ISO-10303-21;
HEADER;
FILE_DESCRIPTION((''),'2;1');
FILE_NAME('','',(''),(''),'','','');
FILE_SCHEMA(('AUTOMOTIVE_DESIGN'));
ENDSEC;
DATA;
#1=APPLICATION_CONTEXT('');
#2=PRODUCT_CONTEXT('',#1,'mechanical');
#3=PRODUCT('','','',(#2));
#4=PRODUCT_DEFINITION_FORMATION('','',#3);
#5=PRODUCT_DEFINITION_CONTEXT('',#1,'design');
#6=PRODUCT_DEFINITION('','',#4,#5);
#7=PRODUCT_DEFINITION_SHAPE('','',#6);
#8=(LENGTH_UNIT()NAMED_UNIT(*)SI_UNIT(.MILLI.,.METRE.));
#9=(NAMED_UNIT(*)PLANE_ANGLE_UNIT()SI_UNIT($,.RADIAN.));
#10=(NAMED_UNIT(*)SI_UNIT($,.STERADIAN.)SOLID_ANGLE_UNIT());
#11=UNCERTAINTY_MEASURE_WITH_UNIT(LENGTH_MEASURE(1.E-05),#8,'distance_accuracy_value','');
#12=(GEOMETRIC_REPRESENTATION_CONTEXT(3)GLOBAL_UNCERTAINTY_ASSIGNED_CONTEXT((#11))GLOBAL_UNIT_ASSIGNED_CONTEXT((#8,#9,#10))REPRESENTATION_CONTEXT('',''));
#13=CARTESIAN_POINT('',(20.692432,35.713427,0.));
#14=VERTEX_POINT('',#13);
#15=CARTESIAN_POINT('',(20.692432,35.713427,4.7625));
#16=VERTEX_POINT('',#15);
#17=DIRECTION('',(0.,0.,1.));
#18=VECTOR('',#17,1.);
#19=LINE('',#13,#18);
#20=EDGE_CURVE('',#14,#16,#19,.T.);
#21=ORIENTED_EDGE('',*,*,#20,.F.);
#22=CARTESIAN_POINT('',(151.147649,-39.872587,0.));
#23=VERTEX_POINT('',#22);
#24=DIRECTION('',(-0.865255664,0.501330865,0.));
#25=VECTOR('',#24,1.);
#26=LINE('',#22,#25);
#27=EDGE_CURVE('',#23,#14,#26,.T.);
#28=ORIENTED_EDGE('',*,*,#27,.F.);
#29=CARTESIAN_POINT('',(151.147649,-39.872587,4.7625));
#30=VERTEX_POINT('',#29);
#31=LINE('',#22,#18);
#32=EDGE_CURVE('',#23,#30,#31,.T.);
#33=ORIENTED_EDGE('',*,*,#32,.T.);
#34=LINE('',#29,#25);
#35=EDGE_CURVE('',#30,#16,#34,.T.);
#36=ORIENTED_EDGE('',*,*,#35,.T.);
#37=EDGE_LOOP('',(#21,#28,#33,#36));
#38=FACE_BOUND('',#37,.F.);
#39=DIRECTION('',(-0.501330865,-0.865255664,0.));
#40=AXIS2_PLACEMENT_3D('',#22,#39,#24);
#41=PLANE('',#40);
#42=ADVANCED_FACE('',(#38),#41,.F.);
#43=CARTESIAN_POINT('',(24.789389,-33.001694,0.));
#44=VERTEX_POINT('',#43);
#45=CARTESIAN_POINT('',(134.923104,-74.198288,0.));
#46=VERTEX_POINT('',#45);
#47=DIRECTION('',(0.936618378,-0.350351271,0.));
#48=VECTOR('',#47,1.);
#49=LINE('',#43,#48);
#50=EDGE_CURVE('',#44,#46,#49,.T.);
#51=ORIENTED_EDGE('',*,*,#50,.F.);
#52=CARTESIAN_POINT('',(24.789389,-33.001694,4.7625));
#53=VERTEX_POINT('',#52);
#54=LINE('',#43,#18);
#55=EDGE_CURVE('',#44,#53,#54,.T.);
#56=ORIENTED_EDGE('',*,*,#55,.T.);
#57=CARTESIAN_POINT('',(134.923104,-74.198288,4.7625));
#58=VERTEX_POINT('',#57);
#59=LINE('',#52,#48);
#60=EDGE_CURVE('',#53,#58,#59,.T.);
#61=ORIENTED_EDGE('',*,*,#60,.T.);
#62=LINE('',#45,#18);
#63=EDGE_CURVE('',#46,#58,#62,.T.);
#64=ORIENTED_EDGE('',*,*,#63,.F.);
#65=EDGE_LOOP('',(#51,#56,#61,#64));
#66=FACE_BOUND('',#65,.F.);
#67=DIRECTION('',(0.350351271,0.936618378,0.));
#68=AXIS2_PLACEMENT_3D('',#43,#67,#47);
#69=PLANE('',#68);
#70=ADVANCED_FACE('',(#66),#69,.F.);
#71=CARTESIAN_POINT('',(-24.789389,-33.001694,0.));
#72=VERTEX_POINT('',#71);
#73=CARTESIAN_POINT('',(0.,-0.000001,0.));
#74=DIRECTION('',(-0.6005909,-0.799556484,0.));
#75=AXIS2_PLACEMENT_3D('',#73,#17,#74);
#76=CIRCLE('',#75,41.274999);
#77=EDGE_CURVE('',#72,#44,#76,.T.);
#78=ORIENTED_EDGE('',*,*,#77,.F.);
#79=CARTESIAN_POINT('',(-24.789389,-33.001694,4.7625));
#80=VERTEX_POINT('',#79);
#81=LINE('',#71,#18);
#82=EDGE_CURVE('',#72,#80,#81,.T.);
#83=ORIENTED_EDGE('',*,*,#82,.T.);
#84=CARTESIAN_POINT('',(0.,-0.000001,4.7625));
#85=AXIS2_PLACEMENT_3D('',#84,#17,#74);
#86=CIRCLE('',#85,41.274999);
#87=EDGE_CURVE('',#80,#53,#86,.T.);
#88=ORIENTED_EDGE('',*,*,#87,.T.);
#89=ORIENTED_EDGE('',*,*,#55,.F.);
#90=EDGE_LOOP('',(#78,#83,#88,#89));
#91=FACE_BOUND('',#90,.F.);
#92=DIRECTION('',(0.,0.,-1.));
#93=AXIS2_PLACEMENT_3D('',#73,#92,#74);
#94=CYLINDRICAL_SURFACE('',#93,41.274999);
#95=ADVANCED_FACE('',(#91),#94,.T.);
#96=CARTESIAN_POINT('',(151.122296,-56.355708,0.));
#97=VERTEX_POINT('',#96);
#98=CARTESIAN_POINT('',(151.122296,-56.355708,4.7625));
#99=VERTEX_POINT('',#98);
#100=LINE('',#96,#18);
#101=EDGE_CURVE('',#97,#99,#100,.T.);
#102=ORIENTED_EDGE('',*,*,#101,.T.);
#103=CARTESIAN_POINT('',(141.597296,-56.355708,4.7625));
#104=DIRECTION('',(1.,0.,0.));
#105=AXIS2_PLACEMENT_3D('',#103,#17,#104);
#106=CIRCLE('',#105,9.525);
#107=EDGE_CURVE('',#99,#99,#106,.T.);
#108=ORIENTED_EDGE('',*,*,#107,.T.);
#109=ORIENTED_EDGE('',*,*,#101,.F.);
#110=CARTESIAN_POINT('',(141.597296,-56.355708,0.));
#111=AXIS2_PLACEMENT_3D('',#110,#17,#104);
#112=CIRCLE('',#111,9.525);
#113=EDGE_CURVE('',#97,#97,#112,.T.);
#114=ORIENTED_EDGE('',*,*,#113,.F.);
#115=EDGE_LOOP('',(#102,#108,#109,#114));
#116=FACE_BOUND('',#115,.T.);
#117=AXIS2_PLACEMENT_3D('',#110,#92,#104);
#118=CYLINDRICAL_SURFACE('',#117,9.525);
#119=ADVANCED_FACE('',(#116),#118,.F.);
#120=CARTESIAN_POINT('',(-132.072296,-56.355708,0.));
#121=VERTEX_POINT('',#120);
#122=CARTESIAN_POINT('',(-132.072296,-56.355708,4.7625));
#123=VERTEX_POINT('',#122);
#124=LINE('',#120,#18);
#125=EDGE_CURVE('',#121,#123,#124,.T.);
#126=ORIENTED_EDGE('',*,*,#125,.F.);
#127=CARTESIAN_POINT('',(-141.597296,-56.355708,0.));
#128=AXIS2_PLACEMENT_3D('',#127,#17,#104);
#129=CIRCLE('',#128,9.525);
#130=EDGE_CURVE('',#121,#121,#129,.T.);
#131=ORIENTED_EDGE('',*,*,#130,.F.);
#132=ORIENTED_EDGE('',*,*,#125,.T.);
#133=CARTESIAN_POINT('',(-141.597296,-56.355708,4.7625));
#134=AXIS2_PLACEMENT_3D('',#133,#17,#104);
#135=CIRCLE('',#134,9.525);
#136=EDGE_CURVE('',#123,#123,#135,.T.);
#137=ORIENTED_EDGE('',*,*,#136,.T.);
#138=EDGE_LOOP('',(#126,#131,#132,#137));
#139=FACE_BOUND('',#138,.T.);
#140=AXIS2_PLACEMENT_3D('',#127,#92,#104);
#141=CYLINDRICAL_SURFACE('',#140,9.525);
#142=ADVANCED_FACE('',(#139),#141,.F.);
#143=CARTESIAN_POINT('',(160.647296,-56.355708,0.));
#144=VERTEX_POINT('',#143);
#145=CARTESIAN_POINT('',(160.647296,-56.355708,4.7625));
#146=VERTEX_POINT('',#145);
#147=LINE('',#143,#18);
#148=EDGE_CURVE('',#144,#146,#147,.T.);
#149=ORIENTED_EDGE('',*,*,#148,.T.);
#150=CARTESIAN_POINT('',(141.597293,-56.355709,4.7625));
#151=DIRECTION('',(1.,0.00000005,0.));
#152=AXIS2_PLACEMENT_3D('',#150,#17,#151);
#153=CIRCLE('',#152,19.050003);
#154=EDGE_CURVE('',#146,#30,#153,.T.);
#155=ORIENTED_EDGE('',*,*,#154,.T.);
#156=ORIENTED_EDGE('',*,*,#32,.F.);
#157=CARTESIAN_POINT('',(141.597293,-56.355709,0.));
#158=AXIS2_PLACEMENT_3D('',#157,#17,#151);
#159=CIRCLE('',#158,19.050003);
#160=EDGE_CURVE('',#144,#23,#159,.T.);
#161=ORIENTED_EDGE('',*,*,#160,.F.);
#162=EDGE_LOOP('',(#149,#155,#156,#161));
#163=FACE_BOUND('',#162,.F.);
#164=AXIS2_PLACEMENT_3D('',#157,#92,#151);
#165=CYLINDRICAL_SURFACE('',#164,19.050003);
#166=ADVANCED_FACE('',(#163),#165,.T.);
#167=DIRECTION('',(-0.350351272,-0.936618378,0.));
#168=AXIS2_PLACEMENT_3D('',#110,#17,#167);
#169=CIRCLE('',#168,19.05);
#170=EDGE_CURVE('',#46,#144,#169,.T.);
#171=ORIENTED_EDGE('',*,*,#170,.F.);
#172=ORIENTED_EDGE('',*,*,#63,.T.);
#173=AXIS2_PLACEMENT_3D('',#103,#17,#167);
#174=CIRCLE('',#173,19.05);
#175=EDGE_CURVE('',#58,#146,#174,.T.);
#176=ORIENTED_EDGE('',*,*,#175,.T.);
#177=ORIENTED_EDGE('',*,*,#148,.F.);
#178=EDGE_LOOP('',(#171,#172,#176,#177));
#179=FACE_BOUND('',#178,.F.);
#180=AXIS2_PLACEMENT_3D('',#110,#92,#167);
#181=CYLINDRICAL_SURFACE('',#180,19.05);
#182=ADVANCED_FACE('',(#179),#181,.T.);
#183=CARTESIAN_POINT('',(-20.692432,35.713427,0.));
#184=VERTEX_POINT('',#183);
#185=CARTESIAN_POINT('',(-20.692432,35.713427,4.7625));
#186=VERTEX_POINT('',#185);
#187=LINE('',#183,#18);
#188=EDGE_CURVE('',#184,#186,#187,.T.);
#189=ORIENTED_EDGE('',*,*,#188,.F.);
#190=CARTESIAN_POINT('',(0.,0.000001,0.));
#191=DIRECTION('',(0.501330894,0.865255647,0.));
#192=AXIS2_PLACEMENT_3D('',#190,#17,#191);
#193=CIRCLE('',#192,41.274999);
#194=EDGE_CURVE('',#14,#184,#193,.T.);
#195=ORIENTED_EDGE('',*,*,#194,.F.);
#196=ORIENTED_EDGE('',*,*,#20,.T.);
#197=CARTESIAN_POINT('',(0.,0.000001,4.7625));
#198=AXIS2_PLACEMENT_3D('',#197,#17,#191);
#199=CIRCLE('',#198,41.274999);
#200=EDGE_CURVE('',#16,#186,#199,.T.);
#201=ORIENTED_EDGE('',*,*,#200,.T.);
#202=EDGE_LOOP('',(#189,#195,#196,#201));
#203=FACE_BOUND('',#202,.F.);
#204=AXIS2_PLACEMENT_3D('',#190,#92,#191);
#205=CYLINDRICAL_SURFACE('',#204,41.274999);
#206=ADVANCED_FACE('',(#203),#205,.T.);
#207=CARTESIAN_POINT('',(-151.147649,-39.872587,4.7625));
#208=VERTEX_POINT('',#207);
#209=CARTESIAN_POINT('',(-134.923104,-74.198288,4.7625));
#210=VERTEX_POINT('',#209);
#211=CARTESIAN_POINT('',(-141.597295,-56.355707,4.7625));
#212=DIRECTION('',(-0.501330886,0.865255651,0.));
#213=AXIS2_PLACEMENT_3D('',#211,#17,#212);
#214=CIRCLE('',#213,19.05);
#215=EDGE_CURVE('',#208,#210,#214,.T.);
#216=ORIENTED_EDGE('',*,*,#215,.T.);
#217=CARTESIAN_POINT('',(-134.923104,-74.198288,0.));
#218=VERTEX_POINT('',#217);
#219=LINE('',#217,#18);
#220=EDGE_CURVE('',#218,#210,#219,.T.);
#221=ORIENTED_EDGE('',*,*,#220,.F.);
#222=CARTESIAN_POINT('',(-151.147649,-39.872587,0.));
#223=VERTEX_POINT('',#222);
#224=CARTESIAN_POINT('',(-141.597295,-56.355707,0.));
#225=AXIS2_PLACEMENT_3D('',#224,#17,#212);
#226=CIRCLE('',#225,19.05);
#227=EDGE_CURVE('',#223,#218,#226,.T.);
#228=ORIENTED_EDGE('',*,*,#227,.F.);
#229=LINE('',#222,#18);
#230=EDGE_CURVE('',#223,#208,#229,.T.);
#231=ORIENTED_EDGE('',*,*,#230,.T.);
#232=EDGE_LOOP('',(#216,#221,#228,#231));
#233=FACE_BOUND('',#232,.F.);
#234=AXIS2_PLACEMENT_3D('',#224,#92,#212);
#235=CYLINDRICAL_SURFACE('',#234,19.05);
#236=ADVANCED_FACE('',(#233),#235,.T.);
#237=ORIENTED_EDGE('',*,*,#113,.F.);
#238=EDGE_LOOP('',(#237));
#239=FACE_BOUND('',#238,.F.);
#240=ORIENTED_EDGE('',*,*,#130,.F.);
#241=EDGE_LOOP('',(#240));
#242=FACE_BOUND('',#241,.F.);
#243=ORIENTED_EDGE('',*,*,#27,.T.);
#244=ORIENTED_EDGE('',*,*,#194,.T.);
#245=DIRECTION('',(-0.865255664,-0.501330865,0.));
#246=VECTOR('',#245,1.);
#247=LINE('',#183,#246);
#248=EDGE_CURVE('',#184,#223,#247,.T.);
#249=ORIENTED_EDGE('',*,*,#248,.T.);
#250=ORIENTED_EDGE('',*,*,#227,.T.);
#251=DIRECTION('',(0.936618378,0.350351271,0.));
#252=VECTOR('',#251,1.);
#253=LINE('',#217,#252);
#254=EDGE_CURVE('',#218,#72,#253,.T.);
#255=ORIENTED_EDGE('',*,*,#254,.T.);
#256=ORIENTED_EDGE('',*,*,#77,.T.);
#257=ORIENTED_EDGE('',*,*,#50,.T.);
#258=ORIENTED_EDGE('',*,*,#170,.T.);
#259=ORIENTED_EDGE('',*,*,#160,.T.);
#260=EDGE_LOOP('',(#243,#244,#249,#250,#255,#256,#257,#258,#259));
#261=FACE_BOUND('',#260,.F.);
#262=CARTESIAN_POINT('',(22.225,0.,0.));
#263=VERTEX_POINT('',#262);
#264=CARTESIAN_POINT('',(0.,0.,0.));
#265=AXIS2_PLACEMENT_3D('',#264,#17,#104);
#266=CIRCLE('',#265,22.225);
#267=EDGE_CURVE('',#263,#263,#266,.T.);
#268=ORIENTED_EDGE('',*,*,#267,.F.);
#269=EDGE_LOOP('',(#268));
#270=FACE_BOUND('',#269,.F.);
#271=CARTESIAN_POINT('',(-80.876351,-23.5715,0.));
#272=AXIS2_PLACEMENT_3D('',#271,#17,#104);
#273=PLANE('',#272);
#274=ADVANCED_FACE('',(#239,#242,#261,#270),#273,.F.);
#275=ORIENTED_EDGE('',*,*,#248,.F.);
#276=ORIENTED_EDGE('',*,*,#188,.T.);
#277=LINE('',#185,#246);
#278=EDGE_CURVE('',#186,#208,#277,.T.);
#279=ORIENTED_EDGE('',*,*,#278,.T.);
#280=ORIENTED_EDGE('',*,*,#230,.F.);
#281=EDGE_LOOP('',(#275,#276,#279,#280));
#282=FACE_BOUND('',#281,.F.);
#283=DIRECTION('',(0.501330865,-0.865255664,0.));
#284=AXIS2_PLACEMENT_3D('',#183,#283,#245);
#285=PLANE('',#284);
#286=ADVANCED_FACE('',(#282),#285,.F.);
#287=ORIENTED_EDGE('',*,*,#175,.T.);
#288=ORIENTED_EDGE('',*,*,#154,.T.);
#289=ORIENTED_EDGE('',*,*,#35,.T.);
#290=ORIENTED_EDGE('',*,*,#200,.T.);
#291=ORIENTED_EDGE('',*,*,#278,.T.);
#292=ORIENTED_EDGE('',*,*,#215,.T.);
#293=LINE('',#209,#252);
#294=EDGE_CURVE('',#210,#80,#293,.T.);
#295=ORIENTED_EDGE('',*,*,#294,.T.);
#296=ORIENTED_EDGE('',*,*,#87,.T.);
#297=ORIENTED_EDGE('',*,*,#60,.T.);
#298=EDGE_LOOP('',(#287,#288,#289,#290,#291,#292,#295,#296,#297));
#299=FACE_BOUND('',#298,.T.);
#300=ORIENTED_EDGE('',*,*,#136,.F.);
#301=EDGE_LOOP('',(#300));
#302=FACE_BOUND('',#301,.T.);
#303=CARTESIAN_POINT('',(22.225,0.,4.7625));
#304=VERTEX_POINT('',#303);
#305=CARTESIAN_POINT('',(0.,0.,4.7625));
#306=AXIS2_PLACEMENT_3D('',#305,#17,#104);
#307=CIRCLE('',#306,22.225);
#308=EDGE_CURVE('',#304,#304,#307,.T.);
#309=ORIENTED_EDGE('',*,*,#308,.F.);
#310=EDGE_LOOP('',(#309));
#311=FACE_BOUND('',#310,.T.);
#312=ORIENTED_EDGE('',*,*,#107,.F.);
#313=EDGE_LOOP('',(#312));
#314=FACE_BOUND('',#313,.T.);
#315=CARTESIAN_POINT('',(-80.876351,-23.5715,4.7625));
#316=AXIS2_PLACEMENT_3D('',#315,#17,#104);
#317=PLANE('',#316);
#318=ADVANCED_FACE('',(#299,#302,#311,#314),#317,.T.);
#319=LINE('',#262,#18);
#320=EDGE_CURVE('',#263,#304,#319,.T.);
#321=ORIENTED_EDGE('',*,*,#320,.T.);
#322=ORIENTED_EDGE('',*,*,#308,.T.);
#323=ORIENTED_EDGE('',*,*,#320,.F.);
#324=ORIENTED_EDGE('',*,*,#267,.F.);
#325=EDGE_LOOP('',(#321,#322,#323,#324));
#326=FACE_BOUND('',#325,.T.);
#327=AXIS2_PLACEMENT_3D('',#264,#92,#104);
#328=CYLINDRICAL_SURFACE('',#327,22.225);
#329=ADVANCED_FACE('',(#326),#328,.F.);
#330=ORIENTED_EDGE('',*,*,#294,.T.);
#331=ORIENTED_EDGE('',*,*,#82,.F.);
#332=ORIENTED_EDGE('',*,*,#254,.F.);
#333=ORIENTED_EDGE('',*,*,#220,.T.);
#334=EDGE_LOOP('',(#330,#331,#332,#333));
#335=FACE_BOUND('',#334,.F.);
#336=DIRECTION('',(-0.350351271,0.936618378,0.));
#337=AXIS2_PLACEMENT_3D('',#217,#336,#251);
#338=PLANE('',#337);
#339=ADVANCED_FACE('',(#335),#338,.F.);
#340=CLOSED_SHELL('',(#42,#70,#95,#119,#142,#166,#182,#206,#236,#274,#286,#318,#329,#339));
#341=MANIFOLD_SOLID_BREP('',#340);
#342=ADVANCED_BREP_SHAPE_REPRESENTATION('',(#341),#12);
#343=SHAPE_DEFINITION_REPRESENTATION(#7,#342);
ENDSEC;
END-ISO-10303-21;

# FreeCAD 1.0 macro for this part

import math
import FreeCAD as App
import Part
import Sketcher

V = App.Vector
Q = App.Units.Quantity

doc = App.newDocument("Part")
body = doc.addObject("PartDesign::Body", "Body")

# Sketch on XY plane
sketch1 = body.newObject("Sketcher::SketchObject", "Sketch")
sketch1.AttachmentSupport = (doc.getObject("XY_Plane"), [""])
sketch1.MapMode = "FlatFace"
sketch1.addGeometry(Part.LineSegment(V(-20.692432, 35.713427, 0), V(-151.147649, -39.872587, 0)), False)
sketch1.addGeometry(Part.ArcOfCircle(Part.Circle(V(-141.597295, -56.355707, 0), V(0, 0, 1), 19.05), math.radians(120.08809), math.radians(290.508801)), False)
sketch1.addGeometry(Part.LineSegment(V(-134.923104, -74.198288, 0), V(-24.789389, -33.001694, 0)), False)
sketch1.addGeometry(Part.ArcOfCircle(Part.Circle(V(0, -0.000001, 0), V(0, 0, 1), 41.274999), math.radians(-126.912229), math.radians(-53.087771)), False)
sketch1.addGeometry(Part.LineSegment(V(24.789389, -33.001694, 0), V(134.923104, -74.198288, 0)), False)
sketch1.addGeometry(Part.ArcOfCircle(Part.Circle(V(141.597296, -56.355708, 0), V(0, 0, 1), 19.05), math.radians(-110.508802), math.radians(-0.000001)), False)
sketch1.addGeometry(Part.ArcOfCircle(Part.Circle(V(141.597293, -56.355709, 0), V(0, 0, 1), 19.050003), math.radians(0.000003), math.radians(59.911907)), False)
sketch1.addGeometry(Part.LineSegment(V(151.147649, -39.872587, 0), V(20.692432, 35.713427, 0)), False)
sketch1.addGeometry(Part.ArcOfCircle(Part.Circle(V(0, 0.000001, 0), V(0, 0, 1), 41.274999), math.radians(59.91191), math.radians(120.08809)), False)
sketch1.addGeometry(Part.Circle(V(-141.597296, -56.355708, 0), V(0, 0, 1), 9.525), False)
sketch1.addGeometry(Part.Circle(V(141.597296, -56.355708, 0), V(0, 0, 1), 9.525), False)
sketch1.addGeometry(Part.Circle(V(0, 0, 0), V(0, 0, 1), 22.225), False)
sketch1.addConstraint(Sketcher.Constraint("Coincident", 0, 2, 1, 1))
sketch1.addConstraint(Sketcher.Constraint("Coincident", 1, 2, 2, 1))
sketch1.addConstraint(Sketcher.Constraint("Coincident", 2, 2, 3, 1))
sketch1.addConstraint(Sketcher.Constraint("Coincident", 3, 2, 4, 1))
sketch1.addConstraint(Sketcher.Constraint("Coincident", 4, 2, 5, 1))
sketch1.addConstraint(Sketcher.Constraint("Coincident", 5, 2, 6, 1))
sketch1.addConstraint(Sketcher.Constraint("Coincident", 6, 2, 7, 1))
sketch1.addConstraint(Sketcher.Constraint("Coincident", 7, 2, 8, 1))
sketch1.addConstraint(Sketcher.Constraint("Coincident", 8, 2, 0, 1))
sketch1.addConstraint(Sketcher.Constraint("Coincident", 3, 3, -1, 1))
sketch1.addConstraint(Sketcher.Constraint("Coincident", 8, 3, -1, 1))
sketch1.addConstraint(Sketcher.Constraint("Coincident", 11, 3, -1, 1))
sketch1.addConstraint(Sketcher.Constraint("Coincident", 6, 3, 5, 3))
sketch1.addConstraint(Sketcher.Constraint("Coincident", 9, 3, 1, 3))
sketch1.addConstraint(Sketcher.Constraint("Coincident", 10, 3, 5, 3))
sketch1.addConstraint(Sketcher.Constraint("Diameter", 9, Q("0.75 in")))
sketch1.addConstraint(Sketcher.Constraint("Diameter", 10, Q("0.75 in")))
sketch1.addConstraint(Sketcher.Constraint("Diameter", 11, Q("1.75 in")))
sketch1.addConstraint(Sketcher.Constraint("Radius", 1, Q("0.75 in")))
sketch1.addConstraint(Sketcher.Constraint("Radius", 5, Q("0.75 in")))
sketch1.addConstraint(Sketcher.Constraint("Radius", 3, Q("1.625 in")))
sketch1.addConstraint(Sketcher.Constraint("Radius", 8, Q("1.6249999 in")))
sketch1.addConstraint(Sketcher.Constraint("DistanceY", 1, 2, 0, 2, Q("34.325701 mm")))
sketch1.addConstraint(Sketcher.Constraint("DistanceY", 4, 2, 6, 2, Q("34.325701 mm")))
sketch1.addConstraint(Sketcher.Constraint("Distance", 2, Q("117.586541 mm")))
sketch1.addConstraint(Sketcher.Constraint("Distance", 4, Q("117.586541 mm")))
sketch1.addConstraint(Sketcher.Constraint("DistanceY", 6, 3, -1, 1, Q("56.355709 mm")))
sketch1.addConstraint(Sketcher.Constraint("DistanceX", 0, 2, -1, 1, Q("151.147649 mm")))
sketch1.addConstraint(Sketcher.Constraint("DistanceY", 1, 2, -1, 1, Q("74.198288 mm")))
sketch1.addConstraint(Sketcher.Constraint("DistanceX", 2, 2, -1, 1, Q("24.789389 mm")))
sketch1.addConstraint(Sketcher.Constraint("DistanceX", -1, 1, 3, 2, Q("24.789389 mm")))
sketch1.addConstraint(Sketcher.Constraint("DistanceY", 4, 2, -1, 1, Q("74.198288 mm")))
sketch1.addConstraint(Sketcher.Constraint("DistanceX", -1, 1, 7, 2, Q("20.692432 mm")))
sketch1.addConstraint(Sketcher.Constraint("DistanceY", 4, 2, 5, 2, Q("17.84258 mm")))
sketch1.addConstraint(Sketcher.Constraint("DistanceY", 2, 2, 8, 2, Q("68.715121 mm")))
pad1 = body.newObject("PartDesign::Pad", "Pad")
pad1.Profile = sketch1
pad1.Length = Q("0.1875 in")

doc.recompute()
